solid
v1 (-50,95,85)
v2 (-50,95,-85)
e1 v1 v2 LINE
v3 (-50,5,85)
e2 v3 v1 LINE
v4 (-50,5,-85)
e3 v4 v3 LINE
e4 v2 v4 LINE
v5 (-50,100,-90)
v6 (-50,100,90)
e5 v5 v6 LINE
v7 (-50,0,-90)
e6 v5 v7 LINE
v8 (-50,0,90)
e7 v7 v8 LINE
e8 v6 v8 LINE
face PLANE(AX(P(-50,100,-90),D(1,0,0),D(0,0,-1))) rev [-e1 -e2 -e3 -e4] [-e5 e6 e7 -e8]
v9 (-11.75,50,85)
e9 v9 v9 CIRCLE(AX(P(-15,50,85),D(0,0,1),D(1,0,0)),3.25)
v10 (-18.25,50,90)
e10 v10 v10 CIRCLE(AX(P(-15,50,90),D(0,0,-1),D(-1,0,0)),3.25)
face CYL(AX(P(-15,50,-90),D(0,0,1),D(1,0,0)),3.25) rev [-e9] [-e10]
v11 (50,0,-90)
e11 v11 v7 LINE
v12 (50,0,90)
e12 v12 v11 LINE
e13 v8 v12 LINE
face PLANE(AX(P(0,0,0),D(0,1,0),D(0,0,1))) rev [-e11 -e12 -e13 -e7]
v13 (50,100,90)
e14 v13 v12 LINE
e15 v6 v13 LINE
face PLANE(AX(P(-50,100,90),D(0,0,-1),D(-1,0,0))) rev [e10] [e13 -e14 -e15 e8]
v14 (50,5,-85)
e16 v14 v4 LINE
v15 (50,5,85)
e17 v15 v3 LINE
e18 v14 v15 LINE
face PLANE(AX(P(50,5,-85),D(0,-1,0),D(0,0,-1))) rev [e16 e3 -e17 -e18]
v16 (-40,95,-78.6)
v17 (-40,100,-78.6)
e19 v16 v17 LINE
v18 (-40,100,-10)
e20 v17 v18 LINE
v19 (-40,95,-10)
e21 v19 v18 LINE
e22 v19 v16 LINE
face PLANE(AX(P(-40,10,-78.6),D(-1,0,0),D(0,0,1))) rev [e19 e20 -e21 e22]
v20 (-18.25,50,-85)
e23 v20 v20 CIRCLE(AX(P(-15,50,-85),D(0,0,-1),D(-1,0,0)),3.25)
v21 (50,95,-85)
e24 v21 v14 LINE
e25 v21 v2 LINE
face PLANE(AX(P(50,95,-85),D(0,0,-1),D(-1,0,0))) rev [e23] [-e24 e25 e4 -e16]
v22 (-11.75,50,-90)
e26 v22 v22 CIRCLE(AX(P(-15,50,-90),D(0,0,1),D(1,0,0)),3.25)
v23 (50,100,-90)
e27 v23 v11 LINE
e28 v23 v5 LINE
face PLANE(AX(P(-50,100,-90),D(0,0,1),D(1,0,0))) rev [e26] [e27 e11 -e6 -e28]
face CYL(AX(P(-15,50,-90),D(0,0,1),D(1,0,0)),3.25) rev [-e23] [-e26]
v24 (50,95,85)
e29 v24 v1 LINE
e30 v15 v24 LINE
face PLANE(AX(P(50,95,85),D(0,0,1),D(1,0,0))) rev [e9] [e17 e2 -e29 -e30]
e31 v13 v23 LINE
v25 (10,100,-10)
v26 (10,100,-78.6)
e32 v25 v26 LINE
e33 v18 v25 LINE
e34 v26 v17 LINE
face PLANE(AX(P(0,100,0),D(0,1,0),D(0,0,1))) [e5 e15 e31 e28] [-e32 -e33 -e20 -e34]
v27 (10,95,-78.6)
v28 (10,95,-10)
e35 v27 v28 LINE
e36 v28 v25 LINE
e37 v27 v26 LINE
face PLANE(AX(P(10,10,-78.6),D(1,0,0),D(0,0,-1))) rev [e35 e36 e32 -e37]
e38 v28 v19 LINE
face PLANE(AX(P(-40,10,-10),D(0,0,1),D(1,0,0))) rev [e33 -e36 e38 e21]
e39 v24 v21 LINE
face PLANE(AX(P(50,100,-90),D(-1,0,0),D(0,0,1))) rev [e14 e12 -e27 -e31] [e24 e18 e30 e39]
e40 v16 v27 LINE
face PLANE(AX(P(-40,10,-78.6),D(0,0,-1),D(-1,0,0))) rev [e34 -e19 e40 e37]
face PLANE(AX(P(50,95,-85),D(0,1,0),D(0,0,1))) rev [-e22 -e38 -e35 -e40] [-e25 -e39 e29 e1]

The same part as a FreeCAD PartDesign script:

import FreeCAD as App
import Part
import Sketcher
from FreeCAD import Vector
Q = App.Units.Quantity


def add_polygon(sketch, points):
    """Adds a closed chain of lines whose ends are joined by coincident constraints."""
    first, n = sketch.GeometryCount, len(points)
    for a, b in zip(points, points[1:] + points[:1]):
        sketch.addGeometry(Part.LineSegment(App.Vector(*a, 0), App.Vector(*b, 0)), False)
    for i in range(n):
        sketch.addConstraint(Sketcher.Constraint("Coincident", first + i, 2, first + (i + 1) % n, 1))

doc = App.newDocument("Part")
body = doc.addObject("PartDesign::Body", "Body")

sketch1 = body.newObject("Sketcher::SketchObject", "Sketch")
sketch1.AttachmentSupport = (doc.getObject("XZ_Plane"), [""])
sketch1.MapMode = "FlatFace"
add_polygon(sketch1, [(-50, -90), (-50, 90), (50, 90), (50, -90)])
sketch1.addConstraint(Sketcher.Constraint("Vertical", 0))
sketch1.addConstraint(Sketcher.Constraint("Horizontal", 1))
sketch1.addConstraint(Sketcher.Constraint("Vertical", 2))
sketch1.addConstraint(Sketcher.Constraint("Horizontal", 3))
sketch1.addConstraint(Sketcher.Constraint("Symmetric", 0, 2, 2, 2, -1, 1))
sketch1.addConstraint(Sketcher.Constraint("DistanceX", 1, 1, 1, 2, Q("100 mm")))
sketch1.addConstraint(Sketcher.Constraint("DistanceY", 0, 1, 0, 2, Q("180 mm")))
pad1 = body.newObject("PartDesign::Pad", "Pad")
pad1.Profile = sketch1
pad1.Length = 100
pad1.Reversed = True

sketch2 = body.newObject("Sketcher::SketchObject", "Sketch001")
sketch2.AttachmentSupport = (doc.getObject("XZ_Plane"), [""])
sketch2.MapMode = "FlatFace"
sketch2.AttachmentOffset = App.Placement(Vector(0, 0, -100), App.Rotation())
add_polygon(sketch2, [(-40, -79), (-40, -10), (10, -10), (10, -79)])
sketch2.addConstraint(Sketcher.Constraint("Vertical", 0))
sketch2.addConstraint(Sketcher.Constraint("Horizontal", 1))
sketch2.addConstraint(Sketcher.Constraint("Vertical", 2))
sketch2.addConstraint(Sketcher.Constraint("Horizontal", 3))
sketch2.addConstraint(Sketcher.Constraint("DistanceX", 1, 1, 1, 2, Q("50 mm")))
sketch2.addConstraint(Sketcher.Constraint("DistanceY", 0, 1, 0, 2, Q("68.6 mm")))
sketch2.addConstraint(Sketcher.Constraint("DistanceX", 0, 2, -1, 1, Q("40 mm")))
sketch2.addConstraint(Sketcher.Constraint("DistanceY", 0, 2, -1, 1, Q("10 mm")))
pocket1 = body.newObject("PartDesign::Pocket", "Pocket")
pocket1.Profile = sketch2
pocket1.Length = 90
pocket1.Reversed = True

sketch3 = body.newObject("Sketcher::SketchObject", "Sketch002")
sketch3.AttachmentSupport = (doc.getObject("YZ_Plane"), [""])
sketch3.MapMode = "FlatFace"
sketch3.AttachmentOffset = App.Placement(Vector(0, 0, -50), App.Rotation())
add_polygon(sketch3, [(95, -85), (5, -85), (5, 85), (95, 85)])
sketch3.addConstraint(Sketcher.Constraint("Horizontal", 0))
sketch3.addConstraint(Sketcher.Constraint("Vertical", 1))
sketch3.addConstraint(Sketcher.Constraint("Horizontal", 2))
sketch3.addConstraint(Sketcher.Constraint("Vertical", 3))
sketch3.addConstraint(Sketcher.Constraint("DistanceX", 0, 2, 0, 1, Q("90 mm")))
sketch3.addConstraint(Sketcher.Constraint("DistanceY", 1, 1, 1, 2, Q("170 mm")))
sketch3.addConstraint(Sketcher.Constraint("DistanceX", -1, 1, 0, 2, Q("5 mm")))
sketch3.addConstraint(Sketcher.Constraint("DistanceY", 0, 2, -1, 1, Q("85 mm")))
pocket2 = body.newObject("PartDesign::Pocket", "Pocket001")
pocket2.Profile = sketch3
pocket2.Type = "ThroughAll"
pocket2.Reversed = True

sketch4 = body.newObject("Sketcher::SketchObject", "Sketch003")
sketch4.AttachmentSupport = (doc.getObject("XY_Plane"), [""])
sketch4.MapMode = "FlatFace"
sketch4.AttachmentOffset = App.Placement(Vector(0, 0, 90), App.Rotation())
sketch4.addGeometry(Part.Circle(Vector(-15, 50, 0), Vector(0, 0, 1), 3.2), False)
sketch4.addConstraint(Sketcher.Constraint("Diameter", 0, Q("6.5 mm")))
sketch4.addConstraint(Sketcher.Constraint("DistanceX", 0, 3, -1, 1, Q("15 mm")))
sketch4.addConstraint(Sketcher.Constraint("DistanceY", -1, 1, 0, 3, Q("50 mm")))
pocket3 = body.newObject("PartDesign::Pocket", "Pocket002")
pocket3.Profile = sketch4
pocket3.Type = "ThroughAll"
pocket3.Midplane = True

doc.recompute()
